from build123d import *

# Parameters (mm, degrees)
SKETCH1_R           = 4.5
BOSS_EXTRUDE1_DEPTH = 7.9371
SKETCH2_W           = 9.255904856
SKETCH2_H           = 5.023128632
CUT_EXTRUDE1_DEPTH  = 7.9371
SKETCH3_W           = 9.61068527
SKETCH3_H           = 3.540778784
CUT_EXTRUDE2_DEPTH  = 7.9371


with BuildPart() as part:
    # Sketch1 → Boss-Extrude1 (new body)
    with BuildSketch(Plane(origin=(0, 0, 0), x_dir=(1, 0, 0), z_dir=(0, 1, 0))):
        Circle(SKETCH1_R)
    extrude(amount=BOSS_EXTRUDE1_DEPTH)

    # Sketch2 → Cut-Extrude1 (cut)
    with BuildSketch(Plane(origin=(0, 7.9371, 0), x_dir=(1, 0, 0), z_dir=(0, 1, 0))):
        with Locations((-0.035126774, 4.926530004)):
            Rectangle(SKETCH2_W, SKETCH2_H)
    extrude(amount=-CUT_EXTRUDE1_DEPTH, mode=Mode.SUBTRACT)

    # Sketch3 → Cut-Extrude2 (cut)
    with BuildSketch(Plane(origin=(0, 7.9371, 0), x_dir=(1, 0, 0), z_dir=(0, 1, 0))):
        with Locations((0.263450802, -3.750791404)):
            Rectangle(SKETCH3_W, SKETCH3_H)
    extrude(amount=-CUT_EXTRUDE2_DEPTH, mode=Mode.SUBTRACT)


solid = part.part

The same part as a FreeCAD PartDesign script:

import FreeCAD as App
import Part
import Sketcher
from FreeCAD import Vector

doc = App.newDocument("Part")
params = doc.addObject("Spreadsheet::Sheet", "Params")
for row, (alias, value) in enumerate([
    ("sketch1_diameter", "9 mm"),
    ("pad1_length", "7.9371 mm"),
    ("pocket1_length", "7.9371 mm"),
    ("pocket2_length", "7.9371 mm"),
], start=1):
    params.set(f"A{row}", alias)
    params.set(f"B{row}", "=" + value)
    params.setAlias(f"B{row}", alias)

body = doc.addObject("PartDesign::Body", "Body")

# Sketch on XZ plane
sketch1 = body.newObject("Sketcher::SketchObject", "Sketch")
sketch1.AttachmentSupport = (doc.getObject("XZ_Plane"), [""])
sketch1.MapMode = "FlatFace"
sketch1.addGeometry(Part.Circle(Vector(0, 0, 0), Vector(0, 0, 1), 4.5), False)
sketch1.addConstraint([
    Sketcher.Constraint("Coincident", 0, 3, -1, 1),
    Sketcher.Constraint("Diameter", 0, 9.0),
])
sketch1.setExpression("Constraints[1]", "Params.sketch1_diameter")
pad1 = body.newObject("PartDesign::Pad", "Pad")
pad1.Profile = sketch1
pad1.setExpression("Length", "Params.pad1_length")
pad1.Reversed = True

# Sketch on XZ plane
sketch2 = body.newObject("Sketcher::SketchObject", "Sketch001")
sketch2.AttachmentSupport = (doc.getObject("XZ_Plane"), [""])
sketch2.MapMode = "FlatFace"
sketch2.AttachmentOffset = App.Placement(Vector(0, 0, -7.9371), App.Rotation())
sketch2.addGeometry([
    Part.LineSegment(Vector(-5, -7, 0), Vector(-5, -2, 0)),
    Part.LineSegment(Vector(-5, -2, 0), Vector(5, -2, 0)),
    Part.LineSegment(Vector(5, -2, 0), Vector(5, -7, 0)),
    Part.LineSegment(Vector(5, -7, 0), Vector(-5, -7, 0)),
], False)
sketch2.addConstraint([
    Sketcher.Constraint("Coincident", 0, 2, 1, 1),
    Sketcher.Constraint("Coincident", 1, 2, 2, 1),
    Sketcher.Constraint("Coincident", 2, 2, 3, 1),
    Sketcher.Constraint("Coincident", 3, 2, 0, 1),
    Sketcher.Constraint("Vertical", 0),
    Sketcher.Constraint("Horizontal", 1),
    Sketcher.Constraint("Vertical", 2),
    Sketcher.Constraint("Horizontal", 3),
    Sketcher.Constraint("DistanceY", 0, 1, 0, 2, 5.023129),
    Sketcher.Constraint("DistanceX", 1, 1, 1, 2, 9.255905),
    Sketcher.Constraint("DistanceX", 0, 2, -1, 1, 4.663079),
    Sketcher.Constraint("DistanceY", 0, 2, -1, 1, 2.414966),
])
pocket1 = body.newObject("PartDesign::Pocket", "Pocket")
pocket1.Profile = sketch2
pocket1.setExpression("Length", "Params.pocket1_length")
pocket1.Reversed = True

# Sketch on XZ plane
sketch3 = body.newObject("Sketcher::SketchObject", "Sketch002")
sketch3.AttachmentSupport = (doc.getObject("XZ_Plane"), [""])
sketch3.MapMode = "FlatFace"
sketch3.AttachmentOffset = App.Placement(Vector(0, 0, -7.9371), App.Rotation())
sketch3.addGeometry([
    Part.LineSegment(Vector(-4.5, 2, 0), Vector(-4.5, 5.5, 0)),
    Part.LineSegment(Vector(-4.5, 5.5, 0), Vector(5.1, 5.5, 0)),
    Part.LineSegment(Vector(5.1, 5.5, 0), Vector(5.1, 2, 0)),
    Part.LineSegment(Vector(5.1, 2, 0), Vector(-4.5, 2, 0)),
], False)
sketch3.addConstraint([
    Sketcher.Constraint("Coincident", 0, 2, 1, 1),
    Sketcher.Constraint("Coincident", 1, 2, 2, 1),
    Sketcher.Constraint("Coincident", 2, 2, 3, 1),
    Sketcher.Constraint("Coincident", 3, 2, 0, 1),
    Sketcher.Constraint("Vertical", 0),
    Sketcher.Constraint("Horizontal", 1),
    Sketcher.Constraint("Vertical", 2),
    Sketcher.Constraint("Horizontal", 3),
    Sketcher.Constraint("DistanceY", 0, 1, 0, 2, 3.540779),
    Sketcher.Constraint("DistanceX", 1, 1, 1, 2, 9.610685),
    Sketcher.Constraint("DistanceX", 0, 2, -1, 1, 4.541892),
    Sketcher.Constraint("DistanceY", -1, 1, 0, 2, 5.521181),
])
pocket2 = body.newObject("PartDesign::Pocket", "Pocket001")
pocket2.Profile = sketch3
pocket2.setExpression("Length", "Params.pocket2_length")
pocket2.Reversed = True

doc.recompute()
